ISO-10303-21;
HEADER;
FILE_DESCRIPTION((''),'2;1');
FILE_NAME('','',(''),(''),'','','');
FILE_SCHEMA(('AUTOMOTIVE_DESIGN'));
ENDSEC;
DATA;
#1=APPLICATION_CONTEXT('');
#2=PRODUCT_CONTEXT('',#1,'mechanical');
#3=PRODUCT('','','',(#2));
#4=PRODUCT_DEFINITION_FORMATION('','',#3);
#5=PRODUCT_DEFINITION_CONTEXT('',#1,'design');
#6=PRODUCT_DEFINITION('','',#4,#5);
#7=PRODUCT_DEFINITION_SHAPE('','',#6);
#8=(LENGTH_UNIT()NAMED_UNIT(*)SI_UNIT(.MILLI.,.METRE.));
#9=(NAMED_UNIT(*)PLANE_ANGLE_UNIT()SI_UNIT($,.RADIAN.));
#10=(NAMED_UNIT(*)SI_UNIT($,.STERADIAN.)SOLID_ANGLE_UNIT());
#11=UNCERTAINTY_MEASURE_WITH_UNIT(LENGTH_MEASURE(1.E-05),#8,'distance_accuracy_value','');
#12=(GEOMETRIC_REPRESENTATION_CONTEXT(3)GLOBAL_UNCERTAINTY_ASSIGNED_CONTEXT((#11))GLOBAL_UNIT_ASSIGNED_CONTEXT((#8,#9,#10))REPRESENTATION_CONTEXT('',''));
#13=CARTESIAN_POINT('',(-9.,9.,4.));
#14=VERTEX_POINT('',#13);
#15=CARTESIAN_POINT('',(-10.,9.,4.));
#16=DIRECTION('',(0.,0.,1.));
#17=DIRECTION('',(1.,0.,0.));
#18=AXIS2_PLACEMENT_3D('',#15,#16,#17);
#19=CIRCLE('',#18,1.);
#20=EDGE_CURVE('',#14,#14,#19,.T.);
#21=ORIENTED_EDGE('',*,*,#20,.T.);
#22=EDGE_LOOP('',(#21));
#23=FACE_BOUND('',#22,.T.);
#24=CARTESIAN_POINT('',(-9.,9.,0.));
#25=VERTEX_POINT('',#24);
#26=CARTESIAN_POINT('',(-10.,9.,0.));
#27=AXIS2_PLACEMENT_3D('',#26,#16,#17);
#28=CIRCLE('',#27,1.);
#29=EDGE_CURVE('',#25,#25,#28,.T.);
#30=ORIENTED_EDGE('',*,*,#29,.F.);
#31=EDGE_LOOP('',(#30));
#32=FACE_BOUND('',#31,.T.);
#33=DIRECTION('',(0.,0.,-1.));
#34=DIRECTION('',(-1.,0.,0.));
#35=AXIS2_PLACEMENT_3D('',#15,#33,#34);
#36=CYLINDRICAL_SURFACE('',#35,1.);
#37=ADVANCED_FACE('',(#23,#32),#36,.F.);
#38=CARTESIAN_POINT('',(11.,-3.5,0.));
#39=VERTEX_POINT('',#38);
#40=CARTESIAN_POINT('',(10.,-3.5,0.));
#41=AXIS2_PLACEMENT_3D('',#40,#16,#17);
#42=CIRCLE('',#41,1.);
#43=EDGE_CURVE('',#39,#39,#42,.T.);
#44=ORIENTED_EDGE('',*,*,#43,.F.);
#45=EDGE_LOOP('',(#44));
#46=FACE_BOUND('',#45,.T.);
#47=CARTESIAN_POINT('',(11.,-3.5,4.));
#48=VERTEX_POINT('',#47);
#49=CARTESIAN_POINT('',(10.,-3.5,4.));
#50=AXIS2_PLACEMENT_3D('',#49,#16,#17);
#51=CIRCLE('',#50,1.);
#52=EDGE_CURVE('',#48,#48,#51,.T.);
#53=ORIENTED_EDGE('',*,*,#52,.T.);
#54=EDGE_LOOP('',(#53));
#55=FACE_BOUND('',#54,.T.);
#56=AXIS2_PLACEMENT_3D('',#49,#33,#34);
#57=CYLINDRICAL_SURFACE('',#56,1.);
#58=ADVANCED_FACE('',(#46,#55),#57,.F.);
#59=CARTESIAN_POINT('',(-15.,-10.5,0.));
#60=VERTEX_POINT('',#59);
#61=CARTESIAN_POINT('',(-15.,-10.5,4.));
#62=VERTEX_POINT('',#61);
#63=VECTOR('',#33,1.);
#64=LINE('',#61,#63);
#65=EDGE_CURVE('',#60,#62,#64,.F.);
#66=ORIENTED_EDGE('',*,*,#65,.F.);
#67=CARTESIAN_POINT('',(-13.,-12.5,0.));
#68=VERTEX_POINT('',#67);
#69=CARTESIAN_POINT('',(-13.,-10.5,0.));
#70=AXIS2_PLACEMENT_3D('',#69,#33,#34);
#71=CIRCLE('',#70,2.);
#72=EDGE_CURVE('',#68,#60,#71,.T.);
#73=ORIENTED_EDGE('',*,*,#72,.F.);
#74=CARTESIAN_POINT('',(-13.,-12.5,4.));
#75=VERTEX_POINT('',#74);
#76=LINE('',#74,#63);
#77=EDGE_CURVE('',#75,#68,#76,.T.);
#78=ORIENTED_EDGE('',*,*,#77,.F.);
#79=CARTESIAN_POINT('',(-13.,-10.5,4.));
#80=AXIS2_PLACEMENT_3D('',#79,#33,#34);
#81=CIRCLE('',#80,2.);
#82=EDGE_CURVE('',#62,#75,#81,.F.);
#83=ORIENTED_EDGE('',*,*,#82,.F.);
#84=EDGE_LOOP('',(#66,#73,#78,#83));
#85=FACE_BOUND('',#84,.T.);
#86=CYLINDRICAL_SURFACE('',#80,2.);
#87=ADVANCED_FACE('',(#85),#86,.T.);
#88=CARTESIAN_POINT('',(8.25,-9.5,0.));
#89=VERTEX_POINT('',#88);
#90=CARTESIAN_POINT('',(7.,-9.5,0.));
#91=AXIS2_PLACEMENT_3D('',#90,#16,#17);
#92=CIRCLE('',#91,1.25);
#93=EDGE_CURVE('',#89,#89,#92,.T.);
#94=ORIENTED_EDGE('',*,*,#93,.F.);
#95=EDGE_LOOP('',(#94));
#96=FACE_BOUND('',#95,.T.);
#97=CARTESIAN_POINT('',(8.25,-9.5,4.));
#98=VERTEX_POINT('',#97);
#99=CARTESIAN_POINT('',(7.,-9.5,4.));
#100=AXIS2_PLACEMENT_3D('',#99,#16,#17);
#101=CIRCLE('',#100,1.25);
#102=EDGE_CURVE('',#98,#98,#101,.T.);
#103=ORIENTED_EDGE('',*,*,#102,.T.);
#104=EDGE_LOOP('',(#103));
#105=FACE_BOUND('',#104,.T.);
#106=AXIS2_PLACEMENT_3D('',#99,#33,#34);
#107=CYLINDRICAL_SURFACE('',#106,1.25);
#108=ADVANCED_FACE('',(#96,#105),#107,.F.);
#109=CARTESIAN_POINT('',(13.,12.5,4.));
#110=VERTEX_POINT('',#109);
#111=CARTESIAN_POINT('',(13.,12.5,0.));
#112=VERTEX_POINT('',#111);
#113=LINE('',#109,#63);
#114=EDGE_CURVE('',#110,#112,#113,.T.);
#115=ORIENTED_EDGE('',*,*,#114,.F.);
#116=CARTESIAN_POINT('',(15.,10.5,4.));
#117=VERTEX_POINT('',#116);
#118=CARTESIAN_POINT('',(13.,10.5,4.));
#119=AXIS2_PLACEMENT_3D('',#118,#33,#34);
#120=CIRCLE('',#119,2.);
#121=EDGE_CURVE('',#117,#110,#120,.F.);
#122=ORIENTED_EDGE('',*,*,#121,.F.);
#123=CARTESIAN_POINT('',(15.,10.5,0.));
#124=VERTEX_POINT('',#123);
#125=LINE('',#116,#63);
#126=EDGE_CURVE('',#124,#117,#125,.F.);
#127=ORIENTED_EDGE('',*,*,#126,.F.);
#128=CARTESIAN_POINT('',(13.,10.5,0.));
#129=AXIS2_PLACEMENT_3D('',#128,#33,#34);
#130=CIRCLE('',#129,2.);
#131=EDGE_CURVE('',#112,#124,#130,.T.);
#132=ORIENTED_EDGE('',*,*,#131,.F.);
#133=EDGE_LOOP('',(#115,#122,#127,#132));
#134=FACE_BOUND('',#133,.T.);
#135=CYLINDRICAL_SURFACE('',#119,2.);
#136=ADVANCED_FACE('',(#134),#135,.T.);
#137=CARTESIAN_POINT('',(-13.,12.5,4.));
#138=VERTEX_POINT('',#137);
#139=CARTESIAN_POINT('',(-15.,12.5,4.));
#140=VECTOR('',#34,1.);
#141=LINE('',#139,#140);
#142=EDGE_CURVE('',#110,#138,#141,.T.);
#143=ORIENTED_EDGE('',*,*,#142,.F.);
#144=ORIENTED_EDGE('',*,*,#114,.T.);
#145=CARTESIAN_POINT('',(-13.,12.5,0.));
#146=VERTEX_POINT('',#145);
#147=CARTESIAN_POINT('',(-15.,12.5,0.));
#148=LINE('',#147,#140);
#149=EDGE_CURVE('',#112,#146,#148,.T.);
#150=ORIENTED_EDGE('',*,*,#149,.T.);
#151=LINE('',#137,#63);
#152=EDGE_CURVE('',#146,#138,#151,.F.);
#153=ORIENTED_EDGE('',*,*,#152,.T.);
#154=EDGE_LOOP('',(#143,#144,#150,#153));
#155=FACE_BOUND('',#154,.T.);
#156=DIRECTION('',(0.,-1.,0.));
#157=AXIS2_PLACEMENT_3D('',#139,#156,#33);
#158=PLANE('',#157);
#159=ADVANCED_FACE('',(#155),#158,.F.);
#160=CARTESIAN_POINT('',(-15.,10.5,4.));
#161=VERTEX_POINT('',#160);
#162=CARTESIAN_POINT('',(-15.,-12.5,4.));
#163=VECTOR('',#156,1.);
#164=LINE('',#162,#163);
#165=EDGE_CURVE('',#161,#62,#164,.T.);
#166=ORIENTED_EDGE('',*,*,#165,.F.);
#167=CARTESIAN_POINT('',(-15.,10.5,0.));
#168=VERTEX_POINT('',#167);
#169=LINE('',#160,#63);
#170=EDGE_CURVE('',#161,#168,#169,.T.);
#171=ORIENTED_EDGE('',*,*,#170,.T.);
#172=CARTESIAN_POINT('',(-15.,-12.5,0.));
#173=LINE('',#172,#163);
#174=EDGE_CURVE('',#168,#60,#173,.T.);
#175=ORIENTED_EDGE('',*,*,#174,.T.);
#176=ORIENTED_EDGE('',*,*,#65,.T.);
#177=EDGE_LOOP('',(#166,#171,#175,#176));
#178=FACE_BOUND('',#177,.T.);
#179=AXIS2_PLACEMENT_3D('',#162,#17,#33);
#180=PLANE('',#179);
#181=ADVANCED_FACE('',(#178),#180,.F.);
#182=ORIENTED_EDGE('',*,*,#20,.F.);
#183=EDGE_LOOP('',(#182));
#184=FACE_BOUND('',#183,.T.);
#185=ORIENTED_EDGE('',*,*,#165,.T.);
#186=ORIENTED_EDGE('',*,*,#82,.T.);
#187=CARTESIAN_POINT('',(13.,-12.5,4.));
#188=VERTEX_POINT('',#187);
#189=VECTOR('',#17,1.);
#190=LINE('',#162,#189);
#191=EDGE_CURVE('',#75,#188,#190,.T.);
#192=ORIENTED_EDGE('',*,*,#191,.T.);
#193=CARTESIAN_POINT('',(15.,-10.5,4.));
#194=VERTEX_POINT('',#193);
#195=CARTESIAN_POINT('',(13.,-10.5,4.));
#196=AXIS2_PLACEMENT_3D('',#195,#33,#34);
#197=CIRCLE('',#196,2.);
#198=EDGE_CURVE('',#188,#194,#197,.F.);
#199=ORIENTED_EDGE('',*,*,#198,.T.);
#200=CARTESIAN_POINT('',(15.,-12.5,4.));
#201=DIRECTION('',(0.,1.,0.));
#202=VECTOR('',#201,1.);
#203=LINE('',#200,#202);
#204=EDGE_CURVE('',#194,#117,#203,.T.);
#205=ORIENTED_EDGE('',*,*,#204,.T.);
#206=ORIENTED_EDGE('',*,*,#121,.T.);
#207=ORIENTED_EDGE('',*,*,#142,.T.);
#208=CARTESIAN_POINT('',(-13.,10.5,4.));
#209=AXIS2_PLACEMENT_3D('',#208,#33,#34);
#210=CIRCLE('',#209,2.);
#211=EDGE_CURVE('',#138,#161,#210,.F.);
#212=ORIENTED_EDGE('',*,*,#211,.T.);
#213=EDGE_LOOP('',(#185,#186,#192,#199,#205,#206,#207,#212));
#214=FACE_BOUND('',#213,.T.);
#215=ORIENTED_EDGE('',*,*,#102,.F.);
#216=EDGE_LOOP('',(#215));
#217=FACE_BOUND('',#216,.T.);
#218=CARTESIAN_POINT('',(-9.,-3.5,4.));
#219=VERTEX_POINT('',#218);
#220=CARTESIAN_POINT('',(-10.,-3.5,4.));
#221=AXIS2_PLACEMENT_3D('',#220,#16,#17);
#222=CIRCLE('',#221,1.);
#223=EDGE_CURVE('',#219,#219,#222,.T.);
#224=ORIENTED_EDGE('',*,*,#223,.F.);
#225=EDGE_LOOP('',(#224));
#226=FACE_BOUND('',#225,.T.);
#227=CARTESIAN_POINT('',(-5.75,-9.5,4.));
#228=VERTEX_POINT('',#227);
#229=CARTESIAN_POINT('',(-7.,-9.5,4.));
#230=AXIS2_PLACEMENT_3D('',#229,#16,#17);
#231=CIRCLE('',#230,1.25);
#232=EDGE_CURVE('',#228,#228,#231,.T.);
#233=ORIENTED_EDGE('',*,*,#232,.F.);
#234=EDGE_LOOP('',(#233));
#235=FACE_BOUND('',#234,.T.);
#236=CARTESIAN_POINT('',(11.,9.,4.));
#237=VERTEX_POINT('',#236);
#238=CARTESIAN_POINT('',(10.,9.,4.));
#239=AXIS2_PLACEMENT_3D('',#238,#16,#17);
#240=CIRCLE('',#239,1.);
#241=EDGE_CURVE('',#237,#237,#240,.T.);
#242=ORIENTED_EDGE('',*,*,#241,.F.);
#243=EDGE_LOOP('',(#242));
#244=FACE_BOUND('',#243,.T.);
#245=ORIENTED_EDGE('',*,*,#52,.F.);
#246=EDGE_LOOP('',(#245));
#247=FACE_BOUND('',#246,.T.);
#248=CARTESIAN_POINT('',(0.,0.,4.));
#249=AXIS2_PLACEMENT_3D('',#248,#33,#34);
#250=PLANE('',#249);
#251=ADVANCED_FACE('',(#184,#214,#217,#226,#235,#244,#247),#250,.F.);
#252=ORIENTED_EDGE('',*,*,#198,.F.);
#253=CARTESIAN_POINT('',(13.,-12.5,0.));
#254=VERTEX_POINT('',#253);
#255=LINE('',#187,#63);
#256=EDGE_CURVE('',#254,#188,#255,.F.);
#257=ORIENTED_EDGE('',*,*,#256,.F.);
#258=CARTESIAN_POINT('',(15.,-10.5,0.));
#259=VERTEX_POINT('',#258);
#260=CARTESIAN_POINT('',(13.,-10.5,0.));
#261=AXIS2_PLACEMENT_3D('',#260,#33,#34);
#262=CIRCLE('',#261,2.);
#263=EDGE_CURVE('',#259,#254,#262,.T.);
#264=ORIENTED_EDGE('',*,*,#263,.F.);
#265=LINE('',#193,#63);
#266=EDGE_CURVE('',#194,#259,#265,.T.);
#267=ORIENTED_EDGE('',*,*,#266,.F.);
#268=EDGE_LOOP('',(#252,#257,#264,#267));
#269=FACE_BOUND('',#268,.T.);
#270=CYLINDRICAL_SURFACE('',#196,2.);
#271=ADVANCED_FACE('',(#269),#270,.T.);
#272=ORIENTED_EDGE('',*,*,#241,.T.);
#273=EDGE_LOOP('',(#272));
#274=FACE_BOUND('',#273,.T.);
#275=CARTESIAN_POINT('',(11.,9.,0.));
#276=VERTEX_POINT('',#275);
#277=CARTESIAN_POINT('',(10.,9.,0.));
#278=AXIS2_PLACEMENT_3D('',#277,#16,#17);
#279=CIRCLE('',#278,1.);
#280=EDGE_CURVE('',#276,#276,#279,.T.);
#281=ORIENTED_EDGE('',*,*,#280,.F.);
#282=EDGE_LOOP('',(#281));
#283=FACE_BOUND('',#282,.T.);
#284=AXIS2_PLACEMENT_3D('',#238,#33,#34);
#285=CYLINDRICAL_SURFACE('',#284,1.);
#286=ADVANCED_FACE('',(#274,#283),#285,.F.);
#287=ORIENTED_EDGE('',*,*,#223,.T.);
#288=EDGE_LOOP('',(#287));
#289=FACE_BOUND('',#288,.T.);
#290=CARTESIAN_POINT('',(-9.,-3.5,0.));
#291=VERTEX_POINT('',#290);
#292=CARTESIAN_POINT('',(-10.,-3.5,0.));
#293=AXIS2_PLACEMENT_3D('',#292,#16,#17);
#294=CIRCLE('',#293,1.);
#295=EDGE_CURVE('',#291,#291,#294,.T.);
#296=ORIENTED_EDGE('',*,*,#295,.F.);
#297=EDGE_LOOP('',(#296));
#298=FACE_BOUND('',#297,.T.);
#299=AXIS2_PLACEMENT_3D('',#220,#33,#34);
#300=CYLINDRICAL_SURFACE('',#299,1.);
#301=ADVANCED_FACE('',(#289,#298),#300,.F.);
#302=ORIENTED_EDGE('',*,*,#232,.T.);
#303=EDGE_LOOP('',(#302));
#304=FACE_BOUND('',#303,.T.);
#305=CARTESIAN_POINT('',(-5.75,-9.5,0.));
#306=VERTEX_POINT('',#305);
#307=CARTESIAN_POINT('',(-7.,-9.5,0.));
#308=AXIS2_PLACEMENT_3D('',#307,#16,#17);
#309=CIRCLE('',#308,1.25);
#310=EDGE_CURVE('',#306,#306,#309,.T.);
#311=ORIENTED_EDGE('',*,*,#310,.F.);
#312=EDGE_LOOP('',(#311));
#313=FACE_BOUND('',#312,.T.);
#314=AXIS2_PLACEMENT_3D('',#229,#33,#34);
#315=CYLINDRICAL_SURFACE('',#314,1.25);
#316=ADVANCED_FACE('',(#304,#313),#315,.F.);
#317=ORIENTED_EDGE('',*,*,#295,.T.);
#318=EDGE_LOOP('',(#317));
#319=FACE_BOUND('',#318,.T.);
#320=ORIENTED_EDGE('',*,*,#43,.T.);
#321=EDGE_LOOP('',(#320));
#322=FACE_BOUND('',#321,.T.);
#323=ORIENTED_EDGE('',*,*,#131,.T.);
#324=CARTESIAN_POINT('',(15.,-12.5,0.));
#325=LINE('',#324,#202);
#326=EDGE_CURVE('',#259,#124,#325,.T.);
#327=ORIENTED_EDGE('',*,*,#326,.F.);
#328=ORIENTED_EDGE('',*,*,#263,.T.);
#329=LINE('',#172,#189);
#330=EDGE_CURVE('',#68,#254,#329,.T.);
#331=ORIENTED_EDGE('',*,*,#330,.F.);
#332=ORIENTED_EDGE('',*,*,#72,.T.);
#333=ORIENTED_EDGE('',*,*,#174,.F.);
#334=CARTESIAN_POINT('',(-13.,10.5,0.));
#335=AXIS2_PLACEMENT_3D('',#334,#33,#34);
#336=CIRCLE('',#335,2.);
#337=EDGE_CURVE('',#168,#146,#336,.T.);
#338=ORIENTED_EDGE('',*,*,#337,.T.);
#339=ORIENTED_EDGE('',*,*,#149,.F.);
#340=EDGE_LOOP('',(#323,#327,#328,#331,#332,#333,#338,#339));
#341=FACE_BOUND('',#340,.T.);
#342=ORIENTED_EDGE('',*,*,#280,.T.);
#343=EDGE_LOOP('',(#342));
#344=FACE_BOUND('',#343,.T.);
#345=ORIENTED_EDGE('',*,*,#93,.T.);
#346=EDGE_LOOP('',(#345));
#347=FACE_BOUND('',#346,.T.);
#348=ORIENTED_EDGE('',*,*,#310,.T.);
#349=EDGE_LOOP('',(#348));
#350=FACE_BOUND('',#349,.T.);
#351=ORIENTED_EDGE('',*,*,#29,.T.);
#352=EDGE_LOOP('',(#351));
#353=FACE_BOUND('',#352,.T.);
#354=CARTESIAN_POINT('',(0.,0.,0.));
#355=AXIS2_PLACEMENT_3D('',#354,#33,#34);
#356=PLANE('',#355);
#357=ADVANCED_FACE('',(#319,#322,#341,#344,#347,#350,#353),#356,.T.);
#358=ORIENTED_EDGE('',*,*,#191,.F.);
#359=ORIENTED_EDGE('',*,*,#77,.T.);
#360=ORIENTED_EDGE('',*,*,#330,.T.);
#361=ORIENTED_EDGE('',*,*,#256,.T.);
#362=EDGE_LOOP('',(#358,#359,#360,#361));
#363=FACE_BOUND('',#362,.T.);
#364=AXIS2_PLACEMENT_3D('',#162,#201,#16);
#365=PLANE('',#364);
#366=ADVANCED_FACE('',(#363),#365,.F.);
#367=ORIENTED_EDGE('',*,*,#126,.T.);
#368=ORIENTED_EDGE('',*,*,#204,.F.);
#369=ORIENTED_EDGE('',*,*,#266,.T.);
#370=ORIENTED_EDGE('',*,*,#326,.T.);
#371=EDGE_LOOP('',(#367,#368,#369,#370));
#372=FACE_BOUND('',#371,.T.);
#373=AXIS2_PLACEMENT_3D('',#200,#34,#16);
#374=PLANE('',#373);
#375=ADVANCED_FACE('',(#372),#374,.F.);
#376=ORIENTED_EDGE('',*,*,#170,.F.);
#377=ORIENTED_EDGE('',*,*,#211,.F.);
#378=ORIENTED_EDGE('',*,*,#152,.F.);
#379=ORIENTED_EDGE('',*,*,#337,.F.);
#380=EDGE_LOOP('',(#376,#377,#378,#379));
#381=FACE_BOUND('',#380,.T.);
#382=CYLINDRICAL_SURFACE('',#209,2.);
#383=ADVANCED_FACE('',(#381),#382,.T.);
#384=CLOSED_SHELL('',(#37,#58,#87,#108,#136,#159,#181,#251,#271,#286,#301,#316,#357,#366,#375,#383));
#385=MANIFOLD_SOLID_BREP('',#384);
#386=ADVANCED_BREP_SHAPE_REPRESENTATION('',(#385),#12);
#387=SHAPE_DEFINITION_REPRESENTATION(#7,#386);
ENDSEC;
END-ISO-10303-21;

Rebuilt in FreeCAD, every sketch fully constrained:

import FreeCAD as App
import Part
import Sketcher
from FreeCAD import Vector


def edges_at(feature, points):
    """Names of the edges that pass closest to the given points."""
    edges = feature.Shape.Edges
    near = lambda p: min(range(len(edges)), key=lambda i: edges[i].distToShape(Part.Vertex(*p))[0])
    return sorted({f"Edge{near(p) + 1}" for p in points})

doc = App.newDocument("Part")
body = doc.addObject("PartDesign::Body", "Body")

# Sketch on XY plane
sketch1 = doc.addObject("Sketcher::SketchObject", "Sketch")
body.addObject(sketch1)
sketch1.AttachmentSupport = (doc.XY_Plane, [""])
sketch1.MapMode = "FlatFace"
sketch1.addGeometry(Part.LineSegment(Vector(-15, 12.5, 0), Vector(-15, -12.5, 0)), False)
sketch1.addGeometry(Part.LineSegment(Vector(-15, -12.5, 0), Vector(15, -12.5, 0)), False)
sketch1.addGeometry(Part.LineSegment(Vector(15, -12.5, 0), Vector(15, 12.5, 0)), False)
sketch1.addGeometry(Part.LineSegment(Vector(15, 12.5, 0), Vector(-15, 12.5, 0)), False)
sketch1.addGeometry(Part.Circle(Vector(-7, -9.5, 0), Vector(0, 0, 1), 1.2), False)
sketch1.addGeometry(Part.Circle(Vector(-10, -3.5, 0), Vector(0, 0, 1), 1), False)
sketch1.addGeometry(Part.Circle(Vector(7, -9.5, 0), Vector(0, 0, 1), 1.2), False)
sketch1.addGeometry(Part.Circle(Vector(10, -3.5, 0), Vector(0, 0, 1), 1), False)
sketch1.addGeometry(Part.Circle(Vector(-10, 9, 0), Vector(0, 0, 1), 1), False)
sketch1.addGeometry(Part.Circle(Vector(10, 9, 0), Vector(0, 0, 1), 1), False)
sketch1.addConstraint(Sketcher.Constraint("Coincident", 0, 2, 1, 1))
sketch1.addConstraint(Sketcher.Constraint("Coincident", 1, 2, 2, 1))
sketch1.addConstraint(Sketcher.Constraint("Coincident", 2, 2, 3, 1))
sketch1.addConstraint(Sketcher.Constraint("Coincident", 3, 2, 0, 1))
sketch1.addConstraint(Sketcher.Constraint("Vertical", 0))
sketch1.addConstraint(Sketcher.Constraint("Horizontal", 1))
sketch1.addConstraint(Sketcher.Constraint("Vertical", 2))
sketch1.addConstraint(Sketcher.Constraint("Horizontal", 3))
sketch1.addConstraint(Sketcher.Constraint("Equal", 4, 6))
sketch1.addConstraint(Sketcher.Constraint("Equal", 5, 7))
sketch1.addConstraint(Sketcher.Constraint("Equal", 7, 8))
sketch1.addConstraint(Sketcher.Constraint("Equal", 8, 9))
sketch1.addConstraint(Sketcher.Constraint("Symmetric", 0, 2, 2, 2, -1, 1))
sketch1.addConstraint(Sketcher.Constraint("Symmetric", 4, 3, 6, 3, -2))
sketch1.addConstraint(Sketcher.Constraint("Symmetric", 5, 3, 7, 3, -2))
sketch1.addConstraint(Sketcher.Constraint("Symmetric", 8, 3, 9, 3, -2))
sketch1.addConstraint(Sketcher.Constraint("Vertical", 5, 3, 8, 3))
sketch1.addConstraint(Sketcher.Constraint("Diameter", 5, 2.0))
sketch1.addConstraint(Sketcher.Constraint("Diameter", 4, 2.5))
sketch1.addConstraint(Sketcher.Constraint("DistanceX", 1, 1, 1, 2, 30.0))
sketch1.addConstraint(Sketcher.Constraint("DistanceY", 0, 2, 0, 1, 25.0))
sketch1.addConstraint(Sketcher.Constraint("DistanceX", 4, 3, -1, 1, 7.0))
sketch1.addConstraint(Sketcher.Constraint("DistanceX", 5, 3, -1, 1, 10.0))
sketch1.addConstraint(Sketcher.Constraint("DistanceY", -1, 1, 8, 3, 9.0))
sketch1.addConstraint(Sketcher.Constraint("DistanceY", 4, 3, 5, 3, 6.0))
sketch1.addConstraint(Sketcher.Constraint("DistanceY", 0, 2, 4, 3, 3.0))
pad1 = doc.addObject("PartDesign::Pad", "Pad")
body.addObject(pad1)
pad1.Profile = sketch1
pad1.Length = 4
doc.recompute()

fillet = doc.addObject("PartDesign::Fillet", "Fillet")
body.addObject(fillet)
fillet.Base = (pad1, edges_at(pad1, [
    (15, -12.5, 2),
    (-15, -12.5, 2),
    (-15, 12.5, 2),
    (15, 12.5, 2),
]))
fillet.Radius = 2

doc.recompute()
